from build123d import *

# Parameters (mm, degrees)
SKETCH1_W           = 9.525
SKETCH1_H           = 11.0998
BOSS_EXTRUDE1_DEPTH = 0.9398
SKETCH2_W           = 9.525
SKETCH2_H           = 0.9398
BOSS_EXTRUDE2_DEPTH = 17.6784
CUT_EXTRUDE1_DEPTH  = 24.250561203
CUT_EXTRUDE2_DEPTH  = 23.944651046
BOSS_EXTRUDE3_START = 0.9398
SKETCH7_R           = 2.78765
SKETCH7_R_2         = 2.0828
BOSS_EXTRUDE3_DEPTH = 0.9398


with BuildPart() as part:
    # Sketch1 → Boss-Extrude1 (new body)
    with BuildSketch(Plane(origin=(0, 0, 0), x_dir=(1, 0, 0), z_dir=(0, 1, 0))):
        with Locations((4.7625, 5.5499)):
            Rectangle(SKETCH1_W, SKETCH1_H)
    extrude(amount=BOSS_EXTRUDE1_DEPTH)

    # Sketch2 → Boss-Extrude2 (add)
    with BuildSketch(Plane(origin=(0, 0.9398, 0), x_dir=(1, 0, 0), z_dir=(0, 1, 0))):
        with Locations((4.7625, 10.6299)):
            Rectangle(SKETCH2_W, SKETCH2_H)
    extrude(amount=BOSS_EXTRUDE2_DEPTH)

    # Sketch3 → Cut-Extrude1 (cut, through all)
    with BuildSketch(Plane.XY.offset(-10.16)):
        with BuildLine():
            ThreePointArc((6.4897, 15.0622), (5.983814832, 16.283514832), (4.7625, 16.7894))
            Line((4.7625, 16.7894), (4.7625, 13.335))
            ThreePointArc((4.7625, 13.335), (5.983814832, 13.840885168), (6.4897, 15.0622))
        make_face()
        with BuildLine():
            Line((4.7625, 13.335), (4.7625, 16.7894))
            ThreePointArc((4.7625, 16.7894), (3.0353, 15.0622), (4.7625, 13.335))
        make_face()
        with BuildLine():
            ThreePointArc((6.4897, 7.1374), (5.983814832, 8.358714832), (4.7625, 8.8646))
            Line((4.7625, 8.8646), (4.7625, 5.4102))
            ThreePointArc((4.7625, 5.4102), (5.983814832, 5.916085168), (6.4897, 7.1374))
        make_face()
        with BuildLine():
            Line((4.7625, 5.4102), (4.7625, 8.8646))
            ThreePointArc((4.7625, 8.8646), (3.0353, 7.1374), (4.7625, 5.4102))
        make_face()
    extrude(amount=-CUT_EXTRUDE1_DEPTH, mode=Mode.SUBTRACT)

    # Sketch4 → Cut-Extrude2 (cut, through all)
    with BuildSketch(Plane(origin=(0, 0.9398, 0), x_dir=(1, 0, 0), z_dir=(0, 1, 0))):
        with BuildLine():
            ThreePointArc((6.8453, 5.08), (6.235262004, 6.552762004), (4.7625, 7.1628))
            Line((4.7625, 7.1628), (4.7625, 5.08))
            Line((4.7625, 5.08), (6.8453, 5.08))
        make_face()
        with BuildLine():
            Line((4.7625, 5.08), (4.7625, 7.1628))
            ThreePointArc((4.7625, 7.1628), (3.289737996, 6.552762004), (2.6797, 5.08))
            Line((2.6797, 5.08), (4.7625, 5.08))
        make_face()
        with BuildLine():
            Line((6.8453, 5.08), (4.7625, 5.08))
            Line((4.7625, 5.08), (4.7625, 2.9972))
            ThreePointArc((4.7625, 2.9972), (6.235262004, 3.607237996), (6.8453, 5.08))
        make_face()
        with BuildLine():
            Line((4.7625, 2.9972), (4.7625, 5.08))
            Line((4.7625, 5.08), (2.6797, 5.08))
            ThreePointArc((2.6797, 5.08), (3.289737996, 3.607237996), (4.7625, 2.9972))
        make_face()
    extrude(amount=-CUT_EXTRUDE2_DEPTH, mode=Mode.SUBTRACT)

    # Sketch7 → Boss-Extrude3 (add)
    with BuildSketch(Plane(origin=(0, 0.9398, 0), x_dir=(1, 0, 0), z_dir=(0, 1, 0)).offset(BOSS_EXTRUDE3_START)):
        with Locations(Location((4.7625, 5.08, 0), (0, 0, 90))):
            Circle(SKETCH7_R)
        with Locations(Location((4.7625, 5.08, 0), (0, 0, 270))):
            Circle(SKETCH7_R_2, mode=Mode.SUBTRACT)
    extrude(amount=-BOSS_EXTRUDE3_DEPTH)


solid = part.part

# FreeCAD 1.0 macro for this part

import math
import FreeCAD as App
import Part
import Sketcher
Q = App.Units.Quantity


def add_polygon(sketch, points):
    """Adds a closed chain of lines whose ends are joined by coincident constraints."""
    first, n = sketch.GeometryCount, len(points)
    for a, b in zip(points, points[1:] + points[:1]):
        sketch.addGeometry(Part.LineSegment(App.Vector(*a, 0), App.Vector(*b, 0)), False)
    for i in range(n):
        sketch.addConstraint(Sketcher.Constraint("Coincident", first + i, 2, first + (i + 1) % n, 1))

doc = App.newDocument("Part")
params = doc.addObject("Spreadsheet::Sheet", "Params")
for row, (alias, value) in enumerate([
    ("sketch1_width", "0.375 in"),
    ("sketch1_height", "0.437 in"),
    ("pad1_length", "0.037 in"),
    ("sketch2_width", "0.375 in"),
    ("sketch2_height", "0.037 in"),
    ("pad2_length", "0.696 in"),
    ("sketch3_radius", "0.068 in"),
    ("sketch4_radius", "0.082 in"),
    ("sketch5_diameter", "0.164 in"),
    ("pad3_length", "0.037 in"),
], start=1):
    params.set(f"A{row}", alias)
    params.set(f"B{row}", "=" + value)
    params.setAlias(f"B{row}", alias)

body = doc.addObject("PartDesign::Body", "Body")

# Sketch on XZ plane
sketch1 = body.newObject("Sketcher::SketchObject", "Sketch")
sketch1.AttachmentSupport = (doc.getObject("XZ_Plane"), [""])
sketch1.MapMode = "FlatFace"
add_polygon(sketch1, [(0, -11.0998), (0, 0), (9.525, 0), (9.525, -11.0998)])  # lines 0-3
sketch1.addConstraint([
    Sketcher.Constraint("Vertical", 0),
    Sketcher.Constraint("Horizontal", 1),
    Sketcher.Constraint("Vertical", 2),
    Sketcher.Constraint("Horizontal", 3),
    Sketcher.Constraint("Coincident", 0, 2, -1, 1),
    Sketcher.Constraint("DistanceX", 1, 1, 1, 2, Q("0.375 in")),
    Sketcher.Constraint("DistanceY", 0, 1, 0, 2, Q("0.437 in")),
])
sketch1.setExpression("Constraints[9]", "Params.sketch1_width")
sketch1.setExpression("Constraints[10]", "Params.sketch1_height")
pad1 = body.newObject("PartDesign::Pad", "Pad")
pad1.Profile = sketch1
pad1.setExpression("Length", "Params.pad1_length")
pad1.Reversed = True

# Sketch on XZ plane
sketch2 = body.newObject("Sketcher::SketchObject", "Sketch001")
sketch2.AttachmentSupport = (doc.getObject("XZ_Plane"), [""])
sketch2.MapMode = "FlatFace"
sketch2.AttachmentOffset = App.Placement(App.Vector(0, 0, -0.037 * 25.4), App.Rotation())
add_polygon(sketch2, [(0, -11.0998), (0, -10.16), (9.525, -10.16), (9.525, -11.0998)])  # lines 0-3
sketch2.addConstraint([
    Sketcher.Constraint("Vertical", 0),
    Sketcher.Constraint("Horizontal", 1),
    Sketcher.Constraint("Vertical", 2),
    Sketcher.Constraint("Horizontal", 3),
    Sketcher.Constraint("PointOnObject", 0, 2, -2),
    Sketcher.Constraint("DistanceY", 0, 2, -1, 1, Q("0.4 in")),
    Sketcher.Constraint("DistanceX", 1, 1, 1, 2, Q("0.375 in")),
    Sketcher.Constraint("DistanceY", 0, 1, 0, 2, Q("0.037 in")),
])
sketch2.setExpression("Constraints[10]", "Params.sketch2_width")
sketch2.setExpression("Constraints[11]", "Params.sketch2_height")
pad2 = body.newObject("PartDesign::Pad", "Pad001")
pad2.Profile = sketch2
pad2.setExpression("Length", "Params.pad2_length")
pad2.Reversed = True

# Sketch on XY plane
sketch3 = body.newObject("Sketcher::SketchObject", "Sketch002")
sketch3.AttachmentSupport = (doc.getObject("XY_Plane"), [""])
sketch3.MapMode = "FlatFace"
sketch3.AttachmentOffset = App.Placement(App.Vector(0, 0, -0.4 * 25.4), App.Rotation())
sketch3.addGeometry([
    Part.ArcOfCircle(Part.Circle(App.Vector(4.7625, 15.0622, 0), App.Vector(0, 0, 1), 1.7272), math.radians(0), math.radians(90)),  # 0
    Part.ArcOfCircle(Part.Circle(App.Vector(4.7625, 15.0622, 0), App.Vector(0, 0, 1), 1.7272), math.radians(90), math.radians(270)),  # 1
    Part.ArcOfCircle(Part.Circle(App.Vector(4.7625, 15.0622, 0), App.Vector(0, 0, 1), 1.7272), math.radians(-90), math.radians(0)),  # 2
    Part.ArcOfCircle(Part.Circle(App.Vector(4.7625, 7.1374, 0), App.Vector(0, 0, 1), 1.7272), math.radians(0), math.radians(90)),  # 3
    Part.ArcOfCircle(Part.Circle(App.Vector(4.7625, 7.1374, 0), App.Vector(0, 0, 1), 1.7272), math.radians(90), math.radians(270)),  # 4
    Part.ArcOfCircle(Part.Circle(App.Vector(4.7625, 7.1374, 0), App.Vector(0, 0, 1), 1.7272), math.radians(-90), math.radians(0)),  # 5
], False)
sketch3.addConstraint([
    Sketcher.Constraint("Tangent", 0, 2, 1, 1),
    Sketcher.Constraint("Tangent", 1, 2, 2, 1),
    Sketcher.Constraint("Tangent", 2, 2, 0, 1),
    Sketcher.Constraint("Tangent", 3, 2, 4, 1),
    Sketcher.Constraint("Tangent", 4, 2, 5, 1),
    Sketcher.Constraint("Tangent", 5, 2, 3, 1),
    Sketcher.Constraint("Equal", 2, 3),
    Sketcher.Constraint("Horizontal", 1, 3, 2, 2),
    Sketcher.Constraint("Horizontal", 4, 3, 5, 2),
    Sketcher.Constraint("Vertical", 2, 3, 3, 3),
    Sketcher.Constraint("Vertical", 5, 3, 0, 2),
    Sketcher.Constraint("Vertical", 0, 2, 1, 2),
    Sketcher.Constraint("Vertical", 1, 2, 3, 2),
    Sketcher.Constraint("Vertical", 3, 2, 4, 2),
    Sketcher.Constraint("Radius", 0, Q("0.068 in")),
    Sketcher.Constraint("DistanceY", 5, 3, 0, 2, Q("0.38 in")),
    Sketcher.Constraint("DistanceX", -1, 1, 0, 3, Q("0.1875 in")),
    Sketcher.Constraint("DistanceY", -1, 1, 0, 3, Q("0.593 in")),
])
sketch3.setExpression("Constraints[14]", "Params.sketch3_radius")
pocket1 = body.newObject("PartDesign::Pocket", "Pocket")
pocket1.Profile = sketch3
pocket1.Type = "ThroughAll"

# Sketch on XZ plane
sketch4 = body.newObject("Sketcher::SketchObject", "Sketch003")
sketch4.AttachmentSupport = (doc.getObject("XZ_Plane"), [""])
sketch4.MapMode = "FlatFace"
sketch4.AttachmentOffset = App.Placement(App.Vector(0, 0, -0.037 * 25.4), App.Rotation())
sketch4.addGeometry([
    Part.ArcOfCircle(Part.Circle(App.Vector(4.7625, -5.08, 0), App.Vector(0, 0, 1), 2.0828), math.radians(180), math.radians(270)),
    Part.ArcOfCircle(Part.Circle(App.Vector(4.7625, -5.08, 0), App.Vector(0, 0, 1), 2.0828), math.radians(90), math.radians(180)),
    Part.ArcOfCircle(Part.Circle(App.Vector(4.7625, -5.08, 0), App.Vector(0, 0, 1), 2.0828), math.radians(0), math.radians(90)),
    Part.ArcOfCircle(Part.Circle(App.Vector(4.7625, -5.08, 0), App.Vector(0, 0, 1), 2.0828), math.radians(-90), math.radians(0)),
], False)
sketch4.addConstraint([
    Sketcher.Constraint("Tangent", 0, 1, 1, 2),
    Sketcher.Constraint("Tangent", 1, 1, 2, 2),
    Sketcher.Constraint("Tangent", 2, 1, 3, 2),
    Sketcher.Constraint("Tangent", 3, 1, 0, 2),
    Sketcher.Constraint("Equal", 0, 1),
    Sketcher.Constraint("Horizontal", 3, 3, 0, 1),
    Sketcher.Constraint("Horizontal", 0, 1, 2, 1),
    Sketcher.Constraint("Vertical", 3, 3, 1, 1),
    Sketcher.Constraint("Vertical", 1, 1, 3, 1),
    Sketcher.Constraint("Radius", 0, Q("0.082 in")),
    Sketcher.Constraint("DistanceY", 0, 3, -1, 1, Q("0.2 in")),
    Sketcher.Constraint("DistanceX", -1, 1, 0, 3, Q("0.1875 in")),
])
sketch4.setExpression("Constraints[9]", "Params.sketch4_radius")
pocket2 = body.newObject("PartDesign::Pocket", "Pocket001")
pocket2.Profile = sketch4
pocket2.Type = "ThroughAll"
pocket2.Reversed = True

# Sketch on XZ plane
sketch5 = body.newObject("Sketcher::SketchObject", "Sketch004")
sketch5.AttachmentSupport = (doc.getObject("XZ_Plane"), [""])
sketch5.MapMode = "FlatFace"
sketch5.AttachmentOffset = App.Placement(App.Vector(0, 0, -0.074 * 25.4), App.Rotation())
sketch5.addGeometry([
    Part.Circle(App.Vector(4.7625, -5.08, 0), App.Vector(0, 0, 1), 2.78765),
    Part.Circle(App.Vector(4.7625, -5.08, 0), App.Vector(0, 0, 1), 2.0828),
], False)
sketch5.addConstraint([
    Sketcher.Constraint("Coincident", 1, 3, 0, 3),
    Sketcher.Constraint("Diameter", 1, Q("0.164 in")),
    Sketcher.Constraint("Diameter", 0, Q("0.2195 in")),
    Sketcher.Constraint("DistanceY", 0, 3, -1, 1, Q("0.2 in")),
    Sketcher.Constraint("DistanceX", -1, 1, 0, 3, Q("0.1875 in")),
])
sketch5.setExpression("Constraints[1]", "Params.sketch5_diameter")
pad3 = body.newObject("PartDesign::Pad", "Pad002")
pad3.Profile = sketch5
pad3.setExpression("Length", "Params.pad3_length")

doc.recompute()
